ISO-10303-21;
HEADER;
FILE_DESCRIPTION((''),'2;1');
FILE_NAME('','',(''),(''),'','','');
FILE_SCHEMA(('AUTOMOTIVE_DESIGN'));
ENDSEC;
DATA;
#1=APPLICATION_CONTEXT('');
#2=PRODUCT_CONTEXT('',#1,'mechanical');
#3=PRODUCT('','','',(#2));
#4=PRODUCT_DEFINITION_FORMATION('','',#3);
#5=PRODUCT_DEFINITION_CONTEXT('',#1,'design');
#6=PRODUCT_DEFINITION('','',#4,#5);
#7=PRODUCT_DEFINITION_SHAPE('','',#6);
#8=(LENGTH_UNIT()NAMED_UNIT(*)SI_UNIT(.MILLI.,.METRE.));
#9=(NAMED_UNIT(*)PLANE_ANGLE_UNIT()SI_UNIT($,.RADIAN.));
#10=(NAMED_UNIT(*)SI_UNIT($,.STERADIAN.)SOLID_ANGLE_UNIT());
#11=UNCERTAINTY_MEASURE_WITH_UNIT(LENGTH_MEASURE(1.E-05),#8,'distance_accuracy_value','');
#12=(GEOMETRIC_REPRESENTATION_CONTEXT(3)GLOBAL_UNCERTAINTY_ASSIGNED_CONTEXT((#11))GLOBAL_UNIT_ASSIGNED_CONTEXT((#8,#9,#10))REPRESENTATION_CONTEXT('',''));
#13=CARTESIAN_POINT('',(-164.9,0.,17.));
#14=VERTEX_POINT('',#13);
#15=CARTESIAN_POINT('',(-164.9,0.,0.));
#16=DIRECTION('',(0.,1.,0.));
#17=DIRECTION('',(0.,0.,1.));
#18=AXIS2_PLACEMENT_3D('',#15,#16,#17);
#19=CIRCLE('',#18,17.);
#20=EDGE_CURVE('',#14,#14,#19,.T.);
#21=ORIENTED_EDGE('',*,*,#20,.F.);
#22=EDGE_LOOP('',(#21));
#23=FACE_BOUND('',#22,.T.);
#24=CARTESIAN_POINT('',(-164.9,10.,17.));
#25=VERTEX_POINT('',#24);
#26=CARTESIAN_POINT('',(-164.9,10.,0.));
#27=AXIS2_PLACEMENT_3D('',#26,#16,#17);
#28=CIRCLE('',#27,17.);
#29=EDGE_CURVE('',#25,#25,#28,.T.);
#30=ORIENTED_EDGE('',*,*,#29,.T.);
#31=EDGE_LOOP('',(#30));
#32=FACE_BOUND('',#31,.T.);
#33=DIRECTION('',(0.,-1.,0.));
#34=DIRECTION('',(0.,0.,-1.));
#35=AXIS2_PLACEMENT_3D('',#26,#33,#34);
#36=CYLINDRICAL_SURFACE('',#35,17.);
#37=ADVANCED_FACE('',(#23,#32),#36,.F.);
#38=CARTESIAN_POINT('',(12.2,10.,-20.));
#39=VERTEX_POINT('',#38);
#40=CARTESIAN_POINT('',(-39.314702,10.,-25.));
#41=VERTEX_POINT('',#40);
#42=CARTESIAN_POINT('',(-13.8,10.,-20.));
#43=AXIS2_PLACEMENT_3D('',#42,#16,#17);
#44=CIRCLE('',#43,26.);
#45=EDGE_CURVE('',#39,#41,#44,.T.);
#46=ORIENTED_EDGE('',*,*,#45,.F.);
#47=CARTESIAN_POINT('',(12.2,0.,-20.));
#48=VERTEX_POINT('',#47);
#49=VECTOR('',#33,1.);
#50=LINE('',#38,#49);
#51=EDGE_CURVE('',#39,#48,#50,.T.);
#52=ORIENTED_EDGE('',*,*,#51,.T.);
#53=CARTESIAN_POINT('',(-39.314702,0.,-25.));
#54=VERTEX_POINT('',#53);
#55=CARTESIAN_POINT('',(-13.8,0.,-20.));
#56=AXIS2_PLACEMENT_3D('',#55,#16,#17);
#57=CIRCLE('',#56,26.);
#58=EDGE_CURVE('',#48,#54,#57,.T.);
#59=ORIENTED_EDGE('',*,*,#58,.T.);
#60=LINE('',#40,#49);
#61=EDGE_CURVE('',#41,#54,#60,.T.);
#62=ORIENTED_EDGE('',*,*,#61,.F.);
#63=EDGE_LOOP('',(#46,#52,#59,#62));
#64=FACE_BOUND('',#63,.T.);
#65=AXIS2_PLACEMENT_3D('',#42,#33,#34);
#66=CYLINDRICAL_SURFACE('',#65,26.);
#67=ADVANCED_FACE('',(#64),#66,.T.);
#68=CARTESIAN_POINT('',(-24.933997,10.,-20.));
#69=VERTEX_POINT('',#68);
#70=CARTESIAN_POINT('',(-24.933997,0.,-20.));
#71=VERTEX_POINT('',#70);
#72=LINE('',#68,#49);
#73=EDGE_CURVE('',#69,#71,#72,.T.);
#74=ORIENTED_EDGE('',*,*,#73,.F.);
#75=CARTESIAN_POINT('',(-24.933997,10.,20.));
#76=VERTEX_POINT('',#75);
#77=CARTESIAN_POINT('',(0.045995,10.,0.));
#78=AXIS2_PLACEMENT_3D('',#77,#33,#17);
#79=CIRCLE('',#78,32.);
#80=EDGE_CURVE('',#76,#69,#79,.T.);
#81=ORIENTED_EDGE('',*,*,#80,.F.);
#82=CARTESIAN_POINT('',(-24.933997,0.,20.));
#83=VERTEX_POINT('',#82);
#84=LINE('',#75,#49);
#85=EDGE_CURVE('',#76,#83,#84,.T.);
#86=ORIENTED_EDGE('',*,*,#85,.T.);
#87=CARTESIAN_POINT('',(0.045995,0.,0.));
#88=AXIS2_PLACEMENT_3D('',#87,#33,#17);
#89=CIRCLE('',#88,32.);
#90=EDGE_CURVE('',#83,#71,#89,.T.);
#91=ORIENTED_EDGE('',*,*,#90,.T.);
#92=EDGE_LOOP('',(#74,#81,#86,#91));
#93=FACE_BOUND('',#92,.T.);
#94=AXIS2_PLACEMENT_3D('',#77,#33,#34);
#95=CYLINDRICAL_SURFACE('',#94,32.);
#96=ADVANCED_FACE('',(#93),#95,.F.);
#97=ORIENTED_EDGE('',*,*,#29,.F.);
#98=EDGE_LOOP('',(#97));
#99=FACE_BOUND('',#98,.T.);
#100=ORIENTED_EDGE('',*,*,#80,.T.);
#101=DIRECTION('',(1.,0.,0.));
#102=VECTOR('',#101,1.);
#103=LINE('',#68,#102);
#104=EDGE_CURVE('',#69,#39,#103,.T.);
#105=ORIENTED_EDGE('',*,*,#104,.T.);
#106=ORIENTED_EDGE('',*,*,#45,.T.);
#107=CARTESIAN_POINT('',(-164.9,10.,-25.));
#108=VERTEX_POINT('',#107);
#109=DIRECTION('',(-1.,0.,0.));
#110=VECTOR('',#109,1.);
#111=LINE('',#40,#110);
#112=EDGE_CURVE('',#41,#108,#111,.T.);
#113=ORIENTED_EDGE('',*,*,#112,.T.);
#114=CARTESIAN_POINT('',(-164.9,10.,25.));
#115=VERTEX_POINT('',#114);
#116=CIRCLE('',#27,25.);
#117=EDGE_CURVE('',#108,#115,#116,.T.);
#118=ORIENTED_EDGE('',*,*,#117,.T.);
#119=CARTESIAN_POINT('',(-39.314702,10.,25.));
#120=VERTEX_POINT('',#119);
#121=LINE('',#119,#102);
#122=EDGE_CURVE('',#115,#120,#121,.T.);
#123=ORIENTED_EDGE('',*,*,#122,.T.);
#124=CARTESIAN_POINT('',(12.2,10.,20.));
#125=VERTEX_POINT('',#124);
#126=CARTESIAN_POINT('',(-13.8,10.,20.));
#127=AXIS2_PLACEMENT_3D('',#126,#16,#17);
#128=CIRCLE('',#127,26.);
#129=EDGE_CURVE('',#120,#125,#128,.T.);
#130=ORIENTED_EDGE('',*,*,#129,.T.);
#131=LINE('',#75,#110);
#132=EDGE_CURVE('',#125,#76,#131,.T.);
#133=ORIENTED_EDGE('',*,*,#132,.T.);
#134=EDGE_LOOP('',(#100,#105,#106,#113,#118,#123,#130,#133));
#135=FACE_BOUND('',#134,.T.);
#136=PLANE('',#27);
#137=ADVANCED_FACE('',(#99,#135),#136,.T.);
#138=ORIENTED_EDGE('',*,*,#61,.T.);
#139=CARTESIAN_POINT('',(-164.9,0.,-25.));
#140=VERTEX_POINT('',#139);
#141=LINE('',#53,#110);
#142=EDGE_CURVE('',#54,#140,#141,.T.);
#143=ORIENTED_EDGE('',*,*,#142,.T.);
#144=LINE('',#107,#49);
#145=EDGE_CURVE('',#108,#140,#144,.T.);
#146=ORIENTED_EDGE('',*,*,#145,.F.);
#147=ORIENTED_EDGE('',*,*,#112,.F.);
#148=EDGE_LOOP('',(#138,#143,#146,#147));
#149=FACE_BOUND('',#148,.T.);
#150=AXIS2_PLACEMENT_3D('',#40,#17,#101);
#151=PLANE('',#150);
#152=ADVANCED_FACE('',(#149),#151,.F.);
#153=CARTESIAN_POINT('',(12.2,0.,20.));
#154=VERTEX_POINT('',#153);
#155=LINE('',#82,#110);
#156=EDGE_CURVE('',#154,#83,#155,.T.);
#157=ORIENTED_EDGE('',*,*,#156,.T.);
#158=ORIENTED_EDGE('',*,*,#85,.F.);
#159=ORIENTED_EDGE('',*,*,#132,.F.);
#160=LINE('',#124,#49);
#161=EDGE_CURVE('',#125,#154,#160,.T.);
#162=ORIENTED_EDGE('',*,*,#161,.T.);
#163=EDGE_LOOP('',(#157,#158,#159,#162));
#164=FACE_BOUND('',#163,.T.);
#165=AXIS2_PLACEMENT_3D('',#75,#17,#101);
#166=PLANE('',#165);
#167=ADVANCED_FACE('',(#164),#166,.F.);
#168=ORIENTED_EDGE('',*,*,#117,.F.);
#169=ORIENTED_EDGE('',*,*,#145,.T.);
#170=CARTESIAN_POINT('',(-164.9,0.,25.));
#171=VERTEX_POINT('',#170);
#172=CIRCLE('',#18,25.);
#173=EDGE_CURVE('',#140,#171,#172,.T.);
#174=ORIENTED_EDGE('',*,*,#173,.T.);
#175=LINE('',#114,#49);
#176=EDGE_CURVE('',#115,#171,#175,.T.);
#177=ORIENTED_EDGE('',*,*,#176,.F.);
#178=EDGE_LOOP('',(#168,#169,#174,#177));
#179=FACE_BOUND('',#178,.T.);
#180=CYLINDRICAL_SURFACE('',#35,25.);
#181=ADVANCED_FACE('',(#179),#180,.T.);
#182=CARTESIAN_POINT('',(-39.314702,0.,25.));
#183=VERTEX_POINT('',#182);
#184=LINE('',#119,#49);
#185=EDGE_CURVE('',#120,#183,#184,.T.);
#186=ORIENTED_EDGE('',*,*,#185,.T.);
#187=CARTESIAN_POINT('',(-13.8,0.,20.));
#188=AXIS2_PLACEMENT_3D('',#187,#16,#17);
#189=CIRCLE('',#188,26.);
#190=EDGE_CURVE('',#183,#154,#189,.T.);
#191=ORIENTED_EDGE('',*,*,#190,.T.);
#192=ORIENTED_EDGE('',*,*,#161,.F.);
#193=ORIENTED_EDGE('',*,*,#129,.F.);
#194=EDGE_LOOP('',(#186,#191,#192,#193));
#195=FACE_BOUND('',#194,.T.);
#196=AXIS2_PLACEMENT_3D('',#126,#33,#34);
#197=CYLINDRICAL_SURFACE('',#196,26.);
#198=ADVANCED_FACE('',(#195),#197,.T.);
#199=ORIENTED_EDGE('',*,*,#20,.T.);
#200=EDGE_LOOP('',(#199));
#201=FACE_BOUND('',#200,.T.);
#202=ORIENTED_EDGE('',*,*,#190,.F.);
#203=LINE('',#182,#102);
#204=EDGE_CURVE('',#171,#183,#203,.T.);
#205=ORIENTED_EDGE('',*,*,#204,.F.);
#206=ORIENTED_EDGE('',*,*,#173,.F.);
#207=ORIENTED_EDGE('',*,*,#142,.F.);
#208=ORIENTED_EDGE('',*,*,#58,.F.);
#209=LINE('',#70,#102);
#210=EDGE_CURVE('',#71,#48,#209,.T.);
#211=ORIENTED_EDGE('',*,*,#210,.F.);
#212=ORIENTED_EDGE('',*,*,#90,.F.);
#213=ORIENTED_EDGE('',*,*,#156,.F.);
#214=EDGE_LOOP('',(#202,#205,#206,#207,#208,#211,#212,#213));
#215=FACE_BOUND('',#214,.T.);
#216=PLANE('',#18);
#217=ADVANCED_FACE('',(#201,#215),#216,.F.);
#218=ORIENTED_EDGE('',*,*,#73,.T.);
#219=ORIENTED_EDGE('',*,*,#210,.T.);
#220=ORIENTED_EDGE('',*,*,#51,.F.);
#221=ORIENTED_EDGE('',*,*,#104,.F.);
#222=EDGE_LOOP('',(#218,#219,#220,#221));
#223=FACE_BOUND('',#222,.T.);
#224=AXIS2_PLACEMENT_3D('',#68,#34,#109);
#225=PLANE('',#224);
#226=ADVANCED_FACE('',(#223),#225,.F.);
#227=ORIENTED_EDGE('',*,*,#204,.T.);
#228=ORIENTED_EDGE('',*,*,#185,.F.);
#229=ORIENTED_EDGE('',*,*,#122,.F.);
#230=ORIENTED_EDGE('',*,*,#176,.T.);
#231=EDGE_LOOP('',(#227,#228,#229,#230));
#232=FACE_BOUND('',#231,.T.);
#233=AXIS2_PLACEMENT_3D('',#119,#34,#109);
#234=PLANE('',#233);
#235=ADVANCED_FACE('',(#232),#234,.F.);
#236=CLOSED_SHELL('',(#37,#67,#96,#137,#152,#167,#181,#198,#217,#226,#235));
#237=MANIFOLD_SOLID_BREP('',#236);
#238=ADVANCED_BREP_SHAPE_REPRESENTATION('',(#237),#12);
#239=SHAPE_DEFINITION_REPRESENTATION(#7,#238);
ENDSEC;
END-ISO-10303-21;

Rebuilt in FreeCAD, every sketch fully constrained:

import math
import FreeCAD as App
import Part
import Sketcher

V = App.Vector
Q = App.Units.Quantity

doc = App.newDocument("Part")
body = doc.addObject("PartDesign::Body", "Body")

# Sketch on XZ plane
sketch1 = body.newObject("Sketcher::SketchObject", "Sketch")
sketch1.AttachmentSupport = (doc.getObject("XZ_Plane"), [""])
sketch1.MapMode = "FlatFace"
sketch1.addGeometry([
    Part.LineSegment(V(-25, -20, 0), V(12, -20, 0)),  # 0
    Part.ArcOfCircle(Part.Circle(V(-14, -20, 0), V(0, 0, 1), 26), math.radians(-169), math.radians(0)),  # 1
    Part.LineSegment(V(-39, -25, 0), V(-165, -25, 0)),  # 2
    Part.ArcOfCircle(Part.Circle(V(-165, 0, 0), V(0, 0, 1), 25), math.radians(90), math.radians(270)),  # 3
    Part.LineSegment(V(-165, 25, 0), V(-39, 25, 0)),  # 4
    Part.ArcOfCircle(Part.Circle(V(-14, 20, 0), V(0, 0, 1), 26), math.radians(0), math.radians(169)),  # 5
    Part.LineSegment(V(12, 20, 0), V(-25, 20, 0)),  # 6
    Part.ArcOfCircle(Part.Circle(V(0, 0, 0), V(0, 0, 1), 32), math.radians(141), math.radians(219)),  # 7
    Part.Circle(V(-165, 0, 0), V(0, 0, 1), 17),  # 8
], False)
sketch1.addConstraint([
    Sketcher.Constraint("Coincident", 0, 2, 1, 2),
    Sketcher.Constraint("Coincident", 1, 1, 2, 1),
    Sketcher.Constraint("Tangent", 2, 2, 3, 2),
    Sketcher.Constraint("Tangent", 3, 1, 4, 1),
    Sketcher.Constraint("Coincident", 4, 2, 5, 2),
    Sketcher.Constraint("Coincident", 5, 1, 6, 1),
    Sketcher.Constraint("Coincident", 6, 2, 7, 1),
    Sketcher.Constraint("Coincident", 7, 2, 0, 1),
    Sketcher.Constraint("Horizontal", 0),
    Sketcher.Constraint("Horizontal", 2),
    Sketcher.Constraint("Horizontal", 4),
    Sketcher.Constraint("Horizontal", 6),
    Sketcher.Constraint("Coincident", 8, 3, 3, 3),
    Sketcher.Constraint("Equal", 1, 5),
    Sketcher.Constraint("Symmetric", 1, 3, 5, 3, -1),
    Sketcher.Constraint("Symmetric", 6, 2, 7, 2, -1),
    Sketcher.Constraint("PointOnObject", 3, 3, -1),
    Sketcher.Constraint("Horizontal", 1, 3, 0, 2),
    Sketcher.Constraint("Diameter", 8, Q("34 mm")),
    Sketcher.Constraint("Radius", 1, Q("26 mm")),
    Sketcher.Constraint("Radius", 3, Q("25 mm")),
    Sketcher.Constraint("Radius", 7, Q("32 mm")),
    Sketcher.Constraint("DistanceY", 1, 3, -1, 1, Q("20 mm")),
    Sketcher.Constraint("DistanceX", 1, 3, -1, 1, Q("13.8 mm")),
    Sketcher.Constraint("DistanceX", 3, 3, -1, 1, Q("164.9 mm")),
    Sketcher.Constraint("DistanceX", 0, 1, 0, 2, Q("37.133997 mm")),
])
pad1 = body.newObject("PartDesign::Pad", "Pad")
pad1.Profile = sketch1
pad1.Length = 10
pad1.Reversed = True

doc.recompute()
